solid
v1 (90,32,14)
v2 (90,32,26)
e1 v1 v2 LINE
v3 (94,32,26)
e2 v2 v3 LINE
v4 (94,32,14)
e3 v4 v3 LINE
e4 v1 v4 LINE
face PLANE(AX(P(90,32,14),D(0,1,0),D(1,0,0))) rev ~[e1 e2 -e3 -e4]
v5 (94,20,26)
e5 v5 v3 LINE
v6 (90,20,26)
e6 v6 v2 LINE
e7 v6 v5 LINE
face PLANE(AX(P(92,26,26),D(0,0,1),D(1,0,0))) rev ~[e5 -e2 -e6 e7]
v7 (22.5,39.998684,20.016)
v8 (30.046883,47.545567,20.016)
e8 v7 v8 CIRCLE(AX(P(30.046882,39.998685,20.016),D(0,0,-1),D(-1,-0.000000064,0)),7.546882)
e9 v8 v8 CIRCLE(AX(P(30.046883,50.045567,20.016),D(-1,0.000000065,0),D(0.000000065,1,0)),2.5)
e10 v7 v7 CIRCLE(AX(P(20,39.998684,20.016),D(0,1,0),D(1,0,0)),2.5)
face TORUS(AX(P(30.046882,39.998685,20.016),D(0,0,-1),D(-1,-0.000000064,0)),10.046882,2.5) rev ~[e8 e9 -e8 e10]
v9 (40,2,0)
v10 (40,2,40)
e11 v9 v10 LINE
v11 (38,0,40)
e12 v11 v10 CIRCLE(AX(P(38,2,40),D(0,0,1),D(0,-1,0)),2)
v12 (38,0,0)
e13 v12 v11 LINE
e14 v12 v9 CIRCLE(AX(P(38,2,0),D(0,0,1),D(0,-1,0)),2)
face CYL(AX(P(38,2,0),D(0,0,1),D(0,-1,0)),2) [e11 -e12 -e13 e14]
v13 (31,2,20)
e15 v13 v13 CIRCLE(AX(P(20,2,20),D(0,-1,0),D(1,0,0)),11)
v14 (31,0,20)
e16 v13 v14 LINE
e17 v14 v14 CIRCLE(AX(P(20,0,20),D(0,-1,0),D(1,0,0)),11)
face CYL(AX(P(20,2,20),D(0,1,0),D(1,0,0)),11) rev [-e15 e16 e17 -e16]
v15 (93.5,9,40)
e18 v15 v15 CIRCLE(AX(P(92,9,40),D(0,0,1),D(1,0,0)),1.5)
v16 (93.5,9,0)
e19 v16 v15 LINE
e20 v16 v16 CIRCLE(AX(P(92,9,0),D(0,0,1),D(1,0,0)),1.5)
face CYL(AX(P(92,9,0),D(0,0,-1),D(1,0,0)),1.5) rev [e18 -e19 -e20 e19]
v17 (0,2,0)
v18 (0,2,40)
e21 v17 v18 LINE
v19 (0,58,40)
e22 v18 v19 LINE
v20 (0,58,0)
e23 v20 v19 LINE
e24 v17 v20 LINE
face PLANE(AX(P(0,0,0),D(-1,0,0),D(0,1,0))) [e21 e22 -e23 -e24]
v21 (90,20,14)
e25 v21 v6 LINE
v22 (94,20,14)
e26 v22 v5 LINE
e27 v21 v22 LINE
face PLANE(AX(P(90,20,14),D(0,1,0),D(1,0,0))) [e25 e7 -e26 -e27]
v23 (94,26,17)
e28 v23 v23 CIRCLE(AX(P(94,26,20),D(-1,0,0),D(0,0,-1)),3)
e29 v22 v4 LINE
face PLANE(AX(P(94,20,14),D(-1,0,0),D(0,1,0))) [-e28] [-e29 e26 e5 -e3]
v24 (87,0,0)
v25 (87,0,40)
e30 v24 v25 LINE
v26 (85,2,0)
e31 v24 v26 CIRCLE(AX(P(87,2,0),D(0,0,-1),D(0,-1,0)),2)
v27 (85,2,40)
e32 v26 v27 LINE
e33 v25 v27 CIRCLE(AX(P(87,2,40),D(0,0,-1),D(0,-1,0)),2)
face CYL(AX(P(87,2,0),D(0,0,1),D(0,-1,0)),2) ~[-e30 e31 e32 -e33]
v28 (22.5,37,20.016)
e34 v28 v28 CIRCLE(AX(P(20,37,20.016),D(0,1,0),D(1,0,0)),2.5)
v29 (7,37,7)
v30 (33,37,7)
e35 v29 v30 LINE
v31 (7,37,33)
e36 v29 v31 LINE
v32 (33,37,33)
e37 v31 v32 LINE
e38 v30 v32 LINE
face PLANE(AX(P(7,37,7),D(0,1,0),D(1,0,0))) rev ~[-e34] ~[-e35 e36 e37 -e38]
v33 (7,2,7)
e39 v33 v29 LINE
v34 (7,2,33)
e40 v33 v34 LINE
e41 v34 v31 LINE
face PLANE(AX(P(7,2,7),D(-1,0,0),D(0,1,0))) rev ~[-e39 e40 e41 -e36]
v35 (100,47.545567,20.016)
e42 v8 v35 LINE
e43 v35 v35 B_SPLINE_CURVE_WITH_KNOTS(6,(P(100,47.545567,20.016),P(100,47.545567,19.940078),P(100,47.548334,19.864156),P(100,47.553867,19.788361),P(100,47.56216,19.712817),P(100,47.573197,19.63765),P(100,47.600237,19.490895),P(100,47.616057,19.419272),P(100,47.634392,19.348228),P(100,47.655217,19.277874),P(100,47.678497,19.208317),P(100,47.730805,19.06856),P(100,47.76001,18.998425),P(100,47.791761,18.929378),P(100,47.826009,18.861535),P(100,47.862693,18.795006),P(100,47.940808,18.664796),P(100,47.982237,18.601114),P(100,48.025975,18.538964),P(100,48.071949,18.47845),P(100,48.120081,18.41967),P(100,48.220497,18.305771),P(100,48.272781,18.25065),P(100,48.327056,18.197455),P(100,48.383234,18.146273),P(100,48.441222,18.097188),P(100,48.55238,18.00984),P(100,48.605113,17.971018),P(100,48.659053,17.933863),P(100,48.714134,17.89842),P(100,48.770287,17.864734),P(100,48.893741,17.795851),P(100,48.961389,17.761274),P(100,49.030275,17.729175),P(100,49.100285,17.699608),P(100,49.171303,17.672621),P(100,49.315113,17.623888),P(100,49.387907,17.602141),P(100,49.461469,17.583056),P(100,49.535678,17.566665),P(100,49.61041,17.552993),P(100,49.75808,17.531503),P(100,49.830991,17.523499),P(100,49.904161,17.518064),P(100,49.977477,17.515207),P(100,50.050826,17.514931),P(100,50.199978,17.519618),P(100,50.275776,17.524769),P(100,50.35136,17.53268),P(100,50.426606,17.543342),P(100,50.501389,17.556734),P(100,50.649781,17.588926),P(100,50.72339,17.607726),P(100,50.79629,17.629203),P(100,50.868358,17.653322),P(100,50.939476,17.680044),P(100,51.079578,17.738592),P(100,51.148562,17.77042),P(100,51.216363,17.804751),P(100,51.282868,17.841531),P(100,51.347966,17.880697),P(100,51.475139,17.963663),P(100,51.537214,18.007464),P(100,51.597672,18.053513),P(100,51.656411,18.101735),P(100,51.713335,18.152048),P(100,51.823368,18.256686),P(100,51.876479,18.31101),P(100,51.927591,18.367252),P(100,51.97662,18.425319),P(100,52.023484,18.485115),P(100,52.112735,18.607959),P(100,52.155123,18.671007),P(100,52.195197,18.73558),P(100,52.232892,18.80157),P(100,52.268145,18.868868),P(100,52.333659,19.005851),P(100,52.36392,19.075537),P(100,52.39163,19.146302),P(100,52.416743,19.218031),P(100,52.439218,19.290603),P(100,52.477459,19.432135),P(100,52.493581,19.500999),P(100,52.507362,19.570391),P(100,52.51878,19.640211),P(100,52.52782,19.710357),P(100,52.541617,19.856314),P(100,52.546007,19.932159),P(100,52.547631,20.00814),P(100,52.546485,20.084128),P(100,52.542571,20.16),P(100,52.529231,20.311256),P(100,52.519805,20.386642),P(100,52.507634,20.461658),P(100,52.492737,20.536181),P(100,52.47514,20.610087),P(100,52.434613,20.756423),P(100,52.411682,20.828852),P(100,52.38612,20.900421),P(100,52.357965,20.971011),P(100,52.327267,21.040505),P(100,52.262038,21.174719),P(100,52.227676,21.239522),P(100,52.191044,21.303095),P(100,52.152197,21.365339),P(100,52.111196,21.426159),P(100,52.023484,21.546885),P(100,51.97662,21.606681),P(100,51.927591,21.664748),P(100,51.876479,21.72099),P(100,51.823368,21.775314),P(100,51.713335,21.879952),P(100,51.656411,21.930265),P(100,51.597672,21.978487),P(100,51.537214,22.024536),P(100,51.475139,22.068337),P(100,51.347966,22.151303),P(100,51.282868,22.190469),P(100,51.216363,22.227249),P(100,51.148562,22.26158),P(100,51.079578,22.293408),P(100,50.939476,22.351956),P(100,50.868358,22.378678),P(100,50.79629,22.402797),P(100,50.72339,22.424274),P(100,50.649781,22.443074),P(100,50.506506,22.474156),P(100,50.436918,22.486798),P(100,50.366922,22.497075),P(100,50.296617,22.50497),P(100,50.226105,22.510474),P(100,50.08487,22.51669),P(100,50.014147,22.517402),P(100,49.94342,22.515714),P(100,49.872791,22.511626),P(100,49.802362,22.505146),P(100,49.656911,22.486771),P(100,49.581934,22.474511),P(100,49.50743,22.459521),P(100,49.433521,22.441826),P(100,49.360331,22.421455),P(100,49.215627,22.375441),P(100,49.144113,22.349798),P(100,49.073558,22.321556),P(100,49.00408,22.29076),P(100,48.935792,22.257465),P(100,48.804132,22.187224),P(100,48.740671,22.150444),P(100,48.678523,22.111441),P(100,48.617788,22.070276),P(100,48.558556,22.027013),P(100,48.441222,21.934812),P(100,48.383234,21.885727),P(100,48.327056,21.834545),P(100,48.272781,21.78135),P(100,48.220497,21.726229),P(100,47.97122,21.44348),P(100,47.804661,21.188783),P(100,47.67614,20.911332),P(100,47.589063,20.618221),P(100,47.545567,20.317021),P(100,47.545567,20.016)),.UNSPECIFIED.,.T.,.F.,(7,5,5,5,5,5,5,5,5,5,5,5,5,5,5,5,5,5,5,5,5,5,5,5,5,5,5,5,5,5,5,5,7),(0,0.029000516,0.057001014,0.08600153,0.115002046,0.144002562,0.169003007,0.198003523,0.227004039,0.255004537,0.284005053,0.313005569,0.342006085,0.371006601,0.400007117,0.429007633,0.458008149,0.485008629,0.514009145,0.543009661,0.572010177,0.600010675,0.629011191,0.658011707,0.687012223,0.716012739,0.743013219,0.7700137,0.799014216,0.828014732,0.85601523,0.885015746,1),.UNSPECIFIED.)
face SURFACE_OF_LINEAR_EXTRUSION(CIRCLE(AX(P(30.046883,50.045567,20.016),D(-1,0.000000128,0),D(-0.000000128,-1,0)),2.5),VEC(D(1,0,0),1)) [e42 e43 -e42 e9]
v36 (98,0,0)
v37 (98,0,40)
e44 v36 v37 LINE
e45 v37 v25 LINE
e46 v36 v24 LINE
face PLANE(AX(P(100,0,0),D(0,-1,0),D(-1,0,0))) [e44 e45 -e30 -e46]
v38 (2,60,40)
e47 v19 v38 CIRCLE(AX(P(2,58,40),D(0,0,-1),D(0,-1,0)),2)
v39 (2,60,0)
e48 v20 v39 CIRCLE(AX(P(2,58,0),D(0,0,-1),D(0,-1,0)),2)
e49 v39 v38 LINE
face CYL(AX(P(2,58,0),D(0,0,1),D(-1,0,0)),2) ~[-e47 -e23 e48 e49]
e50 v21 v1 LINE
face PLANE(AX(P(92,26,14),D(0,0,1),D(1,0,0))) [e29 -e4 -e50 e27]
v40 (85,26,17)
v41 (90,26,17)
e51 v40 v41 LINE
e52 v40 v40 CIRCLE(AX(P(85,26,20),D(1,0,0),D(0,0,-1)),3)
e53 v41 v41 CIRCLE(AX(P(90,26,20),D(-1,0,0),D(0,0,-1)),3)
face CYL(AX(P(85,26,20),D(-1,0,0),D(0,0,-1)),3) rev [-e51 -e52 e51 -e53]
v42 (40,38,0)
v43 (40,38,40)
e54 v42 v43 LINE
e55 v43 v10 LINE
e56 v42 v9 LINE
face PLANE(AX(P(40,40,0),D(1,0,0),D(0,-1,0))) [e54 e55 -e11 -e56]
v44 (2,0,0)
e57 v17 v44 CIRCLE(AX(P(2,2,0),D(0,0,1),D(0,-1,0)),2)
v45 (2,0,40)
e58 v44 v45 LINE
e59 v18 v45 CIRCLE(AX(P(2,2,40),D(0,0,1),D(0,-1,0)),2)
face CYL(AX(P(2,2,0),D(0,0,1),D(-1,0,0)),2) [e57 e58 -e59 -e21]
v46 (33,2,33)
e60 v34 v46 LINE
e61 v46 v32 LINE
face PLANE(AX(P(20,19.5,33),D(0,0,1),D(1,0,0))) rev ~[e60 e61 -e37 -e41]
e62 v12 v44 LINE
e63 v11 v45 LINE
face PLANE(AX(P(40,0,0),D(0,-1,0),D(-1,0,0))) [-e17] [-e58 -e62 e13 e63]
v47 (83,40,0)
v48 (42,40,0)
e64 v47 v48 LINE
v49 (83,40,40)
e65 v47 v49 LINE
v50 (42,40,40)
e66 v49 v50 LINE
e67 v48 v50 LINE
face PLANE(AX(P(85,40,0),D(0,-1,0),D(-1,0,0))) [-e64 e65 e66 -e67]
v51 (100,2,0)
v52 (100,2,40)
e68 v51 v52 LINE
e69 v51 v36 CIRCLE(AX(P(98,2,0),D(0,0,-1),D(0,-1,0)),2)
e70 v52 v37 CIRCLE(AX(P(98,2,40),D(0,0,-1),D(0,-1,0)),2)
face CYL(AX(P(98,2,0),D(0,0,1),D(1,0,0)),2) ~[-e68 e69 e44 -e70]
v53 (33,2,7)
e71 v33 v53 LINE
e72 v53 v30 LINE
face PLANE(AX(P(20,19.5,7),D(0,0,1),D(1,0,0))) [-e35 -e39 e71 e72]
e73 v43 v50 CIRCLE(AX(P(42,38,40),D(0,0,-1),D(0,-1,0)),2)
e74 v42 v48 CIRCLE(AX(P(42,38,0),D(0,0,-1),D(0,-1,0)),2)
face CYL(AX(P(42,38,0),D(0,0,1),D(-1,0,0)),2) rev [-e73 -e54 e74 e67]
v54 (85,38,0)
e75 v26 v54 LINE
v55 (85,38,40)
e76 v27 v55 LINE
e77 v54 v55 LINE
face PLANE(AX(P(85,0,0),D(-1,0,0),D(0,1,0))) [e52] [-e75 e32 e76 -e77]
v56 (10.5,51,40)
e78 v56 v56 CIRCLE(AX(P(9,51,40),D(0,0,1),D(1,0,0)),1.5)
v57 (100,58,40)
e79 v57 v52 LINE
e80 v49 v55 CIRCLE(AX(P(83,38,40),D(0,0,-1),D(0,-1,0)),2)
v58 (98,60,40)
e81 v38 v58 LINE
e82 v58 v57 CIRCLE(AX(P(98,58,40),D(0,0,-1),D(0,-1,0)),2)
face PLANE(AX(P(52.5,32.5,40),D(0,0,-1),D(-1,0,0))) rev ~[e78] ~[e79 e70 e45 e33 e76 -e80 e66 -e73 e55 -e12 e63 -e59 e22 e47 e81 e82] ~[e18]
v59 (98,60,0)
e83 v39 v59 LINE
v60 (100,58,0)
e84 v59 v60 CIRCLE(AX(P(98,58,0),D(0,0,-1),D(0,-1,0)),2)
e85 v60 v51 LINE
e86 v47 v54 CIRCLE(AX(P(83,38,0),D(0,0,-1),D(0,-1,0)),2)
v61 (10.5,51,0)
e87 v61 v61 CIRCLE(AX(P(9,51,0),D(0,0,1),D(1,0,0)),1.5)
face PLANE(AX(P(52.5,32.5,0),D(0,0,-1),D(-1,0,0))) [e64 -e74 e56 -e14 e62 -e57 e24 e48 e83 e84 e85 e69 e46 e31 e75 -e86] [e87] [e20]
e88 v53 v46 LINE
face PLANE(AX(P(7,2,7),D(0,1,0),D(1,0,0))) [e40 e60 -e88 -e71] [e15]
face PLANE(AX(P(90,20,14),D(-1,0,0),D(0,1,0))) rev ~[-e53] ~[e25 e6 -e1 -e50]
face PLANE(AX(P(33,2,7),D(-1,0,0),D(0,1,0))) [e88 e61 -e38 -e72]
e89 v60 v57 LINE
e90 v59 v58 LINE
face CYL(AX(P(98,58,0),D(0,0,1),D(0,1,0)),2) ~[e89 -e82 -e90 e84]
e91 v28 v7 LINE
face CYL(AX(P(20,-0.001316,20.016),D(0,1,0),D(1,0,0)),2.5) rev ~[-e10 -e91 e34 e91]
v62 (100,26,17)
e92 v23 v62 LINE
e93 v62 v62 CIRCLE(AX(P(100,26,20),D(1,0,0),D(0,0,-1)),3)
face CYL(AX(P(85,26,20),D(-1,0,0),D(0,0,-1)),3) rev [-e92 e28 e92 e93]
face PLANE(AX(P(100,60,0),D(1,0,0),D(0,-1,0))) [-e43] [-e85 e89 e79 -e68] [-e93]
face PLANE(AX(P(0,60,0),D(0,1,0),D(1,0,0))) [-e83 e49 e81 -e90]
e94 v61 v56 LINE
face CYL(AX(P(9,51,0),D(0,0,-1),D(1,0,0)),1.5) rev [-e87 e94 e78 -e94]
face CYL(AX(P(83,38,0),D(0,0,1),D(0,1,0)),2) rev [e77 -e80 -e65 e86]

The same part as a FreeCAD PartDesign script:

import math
import FreeCAD as App
import Part
import Sketcher

V = App.Vector


def edges_at(feature, points):
    """Names of the edges that pass closest to the given points."""
    edges = feature.Shape.Edges
    near = lambda p: min(range(len(edges)), key=lambda i: edges[i].distToShape(Part.Vertex(*p))[0])
    return sorted({f"Edge{near(p) + 1}" for p in points})

doc = App.newDocument("Part")
body = doc.addObject("PartDesign::Body", "Body")

# Sketch on XZ plane
sketch1 = body.newObject("Sketcher::SketchObject", "Sketch")
sketch1.AttachmentSupport = (doc.getObject("XZ_Plane"), [""])
sketch1.MapMode = "FlatFace"
sketch1.addGeometry(Part.Circle(V(20, 0, 0), V(0, 0, 1), 2.5), False)
sketch1.addConstraint([
    Sketcher.Constraint("Diameter", 0, 5.0),
    Sketcher.Constraint("DistanceX", -1, 1, 0, 3, 20.0),
    Sketcher.Constraint("DistanceY", -1, 1, 0, 3, 0.016),
])

# Sketch on XY plane
sketch2 = body.newObject("Sketcher::SketchObject", "Sketch001")
sketch2.AttachmentSupport = (doc.getObject("XY_Plane"), [""])
sketch2.MapMode = "FlatFace"
sketch2.addGeometry([
    Part.LineSegment(V(20, 0, 0), V(20, 40, 0)),
    Part.ArcOfCircle(Part.Circle(V(30, 40, 0), V(0, 0, 1), 10), math.radians(90), math.radians(180)),
    Part.LineSegment(V(30, 50, 0), V(100, 50, 0)),
], False)
sketch2.addConstraint([
    Sketcher.Constraint("Tangent", 0, 2, 1, 2),
    Sketcher.Constraint("Tangent", 1, 1, 2, 1),
    Sketcher.Constraint("Vertical", 0),
    Sketcher.Constraint("Horizontal", 2),
    Sketcher.Constraint("Radius", 1, 9.999999),
    Sketcher.Constraint("DistanceX", 2, 1, 2, 2, 70.0),
    Sketcher.Constraint("DistanceY", 0, 1, 0, 2, 40.0),
    Sketcher.Constraint("DistanceX", -1, 1, 1, 3, 30.046882),
    Sketcher.Constraint("DistanceY", -1, 1, 1, 3, 39.998685),
])
doc.recompute()

additivepipe = body.newObject("PartDesign::AdditivePipe", "AdditivePipe")
additivepipe.Profile = sketch1
additivepipe.Spine = (sketch2, ["Edge1", "Edge2", "Edge3"])
body2 = doc.addObject("PartDesign::Body", "Body001")
doc.recompute()

body.Placement = App.Placement(V(0, 0, 20), App.Rotation(V(0, 0, 1), 0))
boolean = body2.newObject("PartDesign::Boolean", "Boolean")
boolean.Type = "Fuse"
boolean.addObjects([body])
body3 = doc.addObject("PartDesign::Body", "Body002")

# Sketch on XZ plane
sketch3 = body3.newObject("Sketcher::SketchObject", "Sketch002")
sketch3.AttachmentSupport = (doc.getObject("XZ_Plane002"), [""])
sketch3.MapMode = "FlatFace"
sketch3.AttachmentOffset = App.Placement(V(0, 0, -2), App.Rotation())
sketch3.addGeometry(Part.Circle(V(20, 20, 0), V(0, 0, 1), 11), False)
sketch3.addConstraint([
    Sketcher.Constraint("Diameter", 0, 22.0),
    Sketcher.Constraint("DistanceX", -1, 1, 0, 3, 20.0),
    Sketcher.Constraint("DistanceY", -1, 1, 0, 3, 20.0),
])
pad1 = body3.newObject("PartDesign::Pad", "Pad")
pad1.Profile = sketch3
pad1.Length = 2
body4 = doc.addObject("PartDesign::Body", "Body003")

# Sketch on XY plane
sketch4 = body4.newObject("Sketcher::SketchObject", "Sketch003")
sketch4.AttachmentSupport = (doc.getObject("XY_Plane003"), [""])
sketch4.MapMode = "FlatFace"
sketch4.AttachmentOffset = App.Placement(V(0, 0, 7), App.Rotation())
sketch4.addGeometry([
    Part.LineSegment(V(7, 37, 0), V(7, 2, 0)),
    Part.LineSegment(V(7, 2, 0), V(33, 2, 0)),
    Part.LineSegment(V(33, 2, 0), V(33, 37, 0)),
    Part.LineSegment(V(33, 37, 0), V(7, 37, 0)),
], False)
sketch4.addConstraint([
    Sketcher.Constraint("Coincident", 0, 2, 1, 1),
    Sketcher.Constraint("Coincident", 1, 2, 2, 1),
    Sketcher.Constraint("Coincident", 2, 2, 3, 1),
    Sketcher.Constraint("Coincident", 3, 2, 0, 1),
    Sketcher.Constraint("Vertical", 0),
    Sketcher.Constraint("Horizontal", 1),
    Sketcher.Constraint("Vertical", 2),
    Sketcher.Constraint("Horizontal", 3),
    Sketcher.Constraint("DistanceX", 1, 1, 1, 2, 26.0),
    Sketcher.Constraint("DistanceY", 0, 2, 0, 1, 35.0),
    Sketcher.Constraint("DistanceX", -1, 1, 0, 2, 7.0),
    Sketcher.Constraint("DistanceY", -1, 1, 0, 2, 2.0),
])
pad2 = body4.newObject("PartDesign::Pad", "Pad001")
pad2.Profile = sketch4
pad2.Length = 26
doc.recompute()

boolean2 = body4.newObject("PartDesign::Boolean", "Boolean001")
boolean2.Type = "Fuse"
boolean2.addObjects([body2])
doc.recompute()

boolean3 = body4.newObject("PartDesign::Boolean", "Boolean002")
boolean3.Type = "Fuse"
boolean3.addObjects([body3])
body5 = doc.addObject("PartDesign::Body", "Body004")

# Sketch on XY plane
sketch5 = body5.newObject("Sketcher::SketchObject", "Sketch004")
sketch5.AttachmentSupport = (doc.getObject("XY_Plane004"), [""])
sketch5.MapMode = "FlatFace"
sketch5.addGeometry(Part.Circle(V(9, 51, 0), V(0, 0, 1), 1.5), False)
sketch5.addConstraint([
    Sketcher.Constraint("Diameter", 0, 3.0),
    Sketcher.Constraint("DistanceX", -1, 1, 0, 3, 9.0),
    Sketcher.Constraint("DistanceY", -1, 1, 0, 3, 51.0),
])
pad3 = body5.newObject("PartDesign::Pad", "Pad002")
pad3.Profile = sketch5
pad3.Length = 40
body6 = doc.addObject("PartDesign::Body", "Body005")
body6.AllowCompound = True

# Sketch on XY plane
sketch6 = body6.newObject("Sketcher::SketchObject", "Sketch005")
sketch6.AttachmentSupport = (doc.getObject("XY_Plane005"), [""])
sketch6.MapMode = "FlatFace"
sketch6.addGeometry(Part.Circle(V(92, 9, 0), V(0, 0, 1), 1.5), False)
sketch6.addConstraint([
    Sketcher.Constraint("Diameter", 0, 3.0),
    Sketcher.Constraint("DistanceX", -1, 1, 0, 3, 92.0),
    Sketcher.Constraint("DistanceY", -1, 1, 0, 3, 9.0),
])
pad4 = body6.newObject("PartDesign::Pad", "Pad003")
pad4.Profile = sketch6
pad4.Length = 40
doc.recompute()

boolean4 = body6.newObject("PartDesign::Boolean", "Boolean003")
boolean4.Type = "Fuse"
boolean4.addObjects([body5])
body7 = doc.addObject("PartDesign::Body", "Body006")

# Sketch on XY plane
sketch7 = body7.newObject("Sketcher::SketchObject", "Sketch006")
sketch7.AttachmentSupport = (doc.getObject("XY_Plane006"), [""])
sketch7.MapMode = "FlatFace"
sketch7.AttachmentOffset = App.Placement(V(0, 0, 14), App.Rotation())
sketch7.addGeometry([
    Part.LineSegment(V(90, 32, 0), V(90, 20, 0)),
    Part.LineSegment(V(90, 20, 0), V(94, 20, 0)),
    Part.LineSegment(V(94, 20, 0), V(94, 32, 0)),
    Part.LineSegment(V(94, 32, 0), V(90, 32, 0)),
], False)
sketch7.addConstraint([
    Sketcher.Constraint("Coincident", 0, 2, 1, 1),
    Sketcher.Constraint("Coincident", 1, 2, 2, 1),
    Sketcher.Constraint("Coincident", 2, 2, 3, 1),
    Sketcher.Constraint("Coincident", 3, 2, 0, 1),
    Sketcher.Constraint("Vertical", 0),
    Sketcher.Constraint("Horizontal", 1),
    Sketcher.Constraint("Vertical", 2),
    Sketcher.Constraint("Horizontal", 3),
    Sketcher.Constraint("DistanceX", 1, 1, 1, 2, 4.0),
    Sketcher.Constraint("DistanceY", 0, 2, 0, 1, 12.0),
    Sketcher.Constraint("DistanceX", -1, 1, 0, 2, 90.0),
    Sketcher.Constraint("DistanceY", -1, 1, 0, 2, 20.0),
])
pad5 = body7.newObject("PartDesign::Pad", "Pad004")
pad5.Profile = sketch7
pad5.Length = 12
body8 = doc.addObject("PartDesign::Body", "Body007")
body8.AllowCompound = True

# Sketch on YZ plane
sketch8 = body8.newObject("Sketcher::SketchObject", "Sketch007")
sketch8.AttachmentSupport = (doc.getObject("YZ_Plane007"), [""])
sketch8.MapMode = "FlatFace"
sketch8.AttachmentOffset = App.Placement(V(0, 0, 85), App.Rotation())
sketch8.addGeometry(Part.Circle(V(26, 20, 0), V(0, 0, 1), 3), False)
sketch8.addConstraint([
    Sketcher.Constraint("Diameter", 0, 6.0),
    Sketcher.Constraint("DistanceX", -1, 1, 0, 3, 26.0),
    Sketcher.Constraint("DistanceY", -1, 1, 0, 3, 20.0),
])
pad6 = body8.newObject("PartDesign::Pad", "Pad005")
pad6.Profile = sketch8
pad6.Length = 15
doc.recompute()

boolean5 = body8.newObject("PartDesign::Boolean", "Boolean004")
boolean5.Type = "Fuse"
boolean5.addObjects([body7])
doc.recompute()

boolean6 = body8.newObject("PartDesign::Boolean", "Boolean005")
boolean6.Type = "Fuse"
boolean6.addObjects([body4])
doc.recompute()

boolean7 = body8.newObject("PartDesign::Boolean", "Boolean006")
boolean7.Type = "Fuse"
boolean7.addObjects([body6])
body9 = doc.addObject("PartDesign::Body", "Body008")

# Sketch on XY plane
sketch9 = body9.newObject("Sketcher::SketchObject", "Sketch008")
sketch9.AttachmentSupport = (doc.getObject("XY_Plane008"), [""])
sketch9.MapMode = "FlatFace"
sketch9.addGeometry([
    Part.LineSegment(V(0, 60, 0), V(0, 0, 0)),  # 0
    Part.LineSegment(V(0, 0, 0), V(40, 0, 0)),  # 1
    Part.LineSegment(V(40, 0, 0), V(40, 40, 0)),  # 2
    Part.LineSegment(V(40, 40, 0), V(85, 40, 0)),  # 3
    Part.LineSegment(V(85, 40, 0), V(85, 0, 0)),  # 4
    Part.LineSegment(V(85, 0, 0), V(100, 0, 0)),  # 5
    Part.LineSegment(V(100, 0, 0), V(100, 60, 0)),  # 6
    Part.LineSegment(V(100, 60, 0), V(0, 60, 0)),  # 7
], False)
sketch9.addConstraint([
    Sketcher.Constraint("Coincident", 0, 2, 1, 1),
    Sketcher.Constraint("Coincident", 1, 2, 2, 1),
    Sketcher.Constraint("Coincident", 2, 2, 3, 1),
    Sketcher.Constraint("Coincident", 3, 2, 4, 1),
    Sketcher.Constraint("Coincident", 4, 2, 5, 1),
    Sketcher.Constraint("Coincident", 5, 2, 6, 1),
    Sketcher.Constraint("Coincident", 6, 2, 7, 1),
    Sketcher.Constraint("Coincident", 7, 2, 0, 1),
    Sketcher.Constraint("Vertical", 0),
    Sketcher.Constraint("Horizontal", 1),
    Sketcher.Constraint("Vertical", 2),
    Sketcher.Constraint("Horizontal", 3),
    Sketcher.Constraint("Vertical", 4),
    Sketcher.Constraint("Horizontal", 5),
    Sketcher.Constraint("Vertical", 6),
    Sketcher.Constraint("Horizontal", 7),
    Sketcher.Constraint("Coincident", 0, 2, -1, 1),
    Sketcher.Constraint("PointOnObject", 4, 2, -1),
    Sketcher.Constraint("Equal", 1, 2),
    Sketcher.Constraint("DistanceX", 1, 1, 1, 2, 40.0),
    Sketcher.Constraint("DistanceX", 3, 1, 3, 2, 45.0),
    Sketcher.Constraint("DistanceX", 5, 1, 5, 2, 15.0),
    Sketcher.Constraint("DistanceY", 0, 2, 0, 1, 60.0),
])
pad7 = body9.newObject("PartDesign::Pad", "Pad006")
pad7.Profile = sketch9
pad7.Length = 40
doc.recompute()

boolean8 = body9.newObject("PartDesign::Boolean", "Boolean007")
boolean8.Type = "Cut"
boolean8.addObjects([body8])
doc.recompute()

fillet = body9.newObject("PartDesign::Fillet", "Fillet")
fillet.Base = (boolean8, edges_at(boolean8, [
    (0, 0, 20),
    (0, 60, 20),
    (40, 0, 20),
    (100, 60, 20),
    (40, 40, 20),
    (100, 0, 20),
    (85, 40, 20),
    (85, 0, 20),
]))
fillet.Radius = 2

doc.recompute()
